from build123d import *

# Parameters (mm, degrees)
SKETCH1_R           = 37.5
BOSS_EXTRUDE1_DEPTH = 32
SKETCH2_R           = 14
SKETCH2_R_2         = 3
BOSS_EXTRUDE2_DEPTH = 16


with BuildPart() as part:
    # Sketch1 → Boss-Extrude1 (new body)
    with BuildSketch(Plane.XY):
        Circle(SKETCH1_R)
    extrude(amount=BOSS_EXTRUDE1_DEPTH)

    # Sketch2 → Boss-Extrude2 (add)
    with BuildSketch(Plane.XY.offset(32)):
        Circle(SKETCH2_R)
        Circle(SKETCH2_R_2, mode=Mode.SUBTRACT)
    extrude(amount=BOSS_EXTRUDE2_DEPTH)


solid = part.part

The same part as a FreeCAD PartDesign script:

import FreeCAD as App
import Part
import Sketcher
Q = App.Units.Quantity

doc = App.newDocument("Part")
params = doc.addObject("Spreadsheet::Sheet", "Params")
for row, (alias, value) in enumerate([
    ("sketch1_diameter", "75 mm"),
    ("pad1_length", "32 mm"),
    ("sketch2_diameter", "28 mm"),
    ("sketch2_diameter2", "6 mm"),
    ("pad2_length", "16 mm"),
], start=1):
    params.set(f"A{row}", alias)
    params.set(f"B{row}", "=" + value)
    params.setAlias(f"B{row}", alias)

body = doc.addObject("PartDesign::Body", "Body")

# Sketch on XY plane
sketch1 = doc.addObject("Sketcher::SketchObject", "Sketch")
body.addObject(sketch1)
sketch1.AttachmentSupport = (doc.XY_Plane, [""])
sketch1.MapMode = "FlatFace"
sketch1.addGeometry(Part.Circle(App.Vector(0, 0, 0), App.Vector(0, 0, 1), 38), False)
sketch1.addConstraint([
    Sketcher.Constraint("Coincident", 0, 3, -1, 1),
    Sketcher.Constraint("Diameter", 0, Q("75 mm")),
])
sketch1.setExpression("Constraints[1]", "Params.sketch1_diameter")
pad1 = doc.addObject("PartDesign::Pad", "Pad")
body.addObject(pad1)
pad1.Profile = sketch1
pad1.setExpression("Length", "Params.pad1_length")

# Sketch on XY plane
sketch2 = doc.addObject("Sketcher::SketchObject", "Sketch001")
body.addObject(sketch2)
sketch2.AttachmentSupport = (doc.XY_Plane, [""])
sketch2.MapMode = "FlatFace"
sketch2.AttachmentOffset = App.Placement(App.Vector(0, 0, 32), App.Rotation())
sketch2.addGeometry([
    Part.Circle(App.Vector(0, 0, 0), App.Vector(0, 0, 1), 14),
    Part.Circle(App.Vector(0, 0, 0), App.Vector(0, 0, 1), 3),
], False)
sketch2.addConstraint([
    Sketcher.Constraint("Coincident", 0, 3, -1, 1),
    Sketcher.Constraint("Coincident", 1, 3, -1, 1),
    Sketcher.Constraint("Diameter", 0, Q("28 mm")),
    Sketcher.Constraint("Diameter", 1, Q("6 mm")),
])
sketch2.setExpression("Constraints[2]", "Params.sketch2_diameter")
sketch2.setExpression("Constraints[3]", "Params.sketch2_diameter2")
pad2 = doc.addObject("PartDesign::Pad", "Pad001")
body.addObject(pad2)
pad2.Profile = sketch2
pad2.setExpression("Length", "Params.pad2_length")

doc.recompute()
